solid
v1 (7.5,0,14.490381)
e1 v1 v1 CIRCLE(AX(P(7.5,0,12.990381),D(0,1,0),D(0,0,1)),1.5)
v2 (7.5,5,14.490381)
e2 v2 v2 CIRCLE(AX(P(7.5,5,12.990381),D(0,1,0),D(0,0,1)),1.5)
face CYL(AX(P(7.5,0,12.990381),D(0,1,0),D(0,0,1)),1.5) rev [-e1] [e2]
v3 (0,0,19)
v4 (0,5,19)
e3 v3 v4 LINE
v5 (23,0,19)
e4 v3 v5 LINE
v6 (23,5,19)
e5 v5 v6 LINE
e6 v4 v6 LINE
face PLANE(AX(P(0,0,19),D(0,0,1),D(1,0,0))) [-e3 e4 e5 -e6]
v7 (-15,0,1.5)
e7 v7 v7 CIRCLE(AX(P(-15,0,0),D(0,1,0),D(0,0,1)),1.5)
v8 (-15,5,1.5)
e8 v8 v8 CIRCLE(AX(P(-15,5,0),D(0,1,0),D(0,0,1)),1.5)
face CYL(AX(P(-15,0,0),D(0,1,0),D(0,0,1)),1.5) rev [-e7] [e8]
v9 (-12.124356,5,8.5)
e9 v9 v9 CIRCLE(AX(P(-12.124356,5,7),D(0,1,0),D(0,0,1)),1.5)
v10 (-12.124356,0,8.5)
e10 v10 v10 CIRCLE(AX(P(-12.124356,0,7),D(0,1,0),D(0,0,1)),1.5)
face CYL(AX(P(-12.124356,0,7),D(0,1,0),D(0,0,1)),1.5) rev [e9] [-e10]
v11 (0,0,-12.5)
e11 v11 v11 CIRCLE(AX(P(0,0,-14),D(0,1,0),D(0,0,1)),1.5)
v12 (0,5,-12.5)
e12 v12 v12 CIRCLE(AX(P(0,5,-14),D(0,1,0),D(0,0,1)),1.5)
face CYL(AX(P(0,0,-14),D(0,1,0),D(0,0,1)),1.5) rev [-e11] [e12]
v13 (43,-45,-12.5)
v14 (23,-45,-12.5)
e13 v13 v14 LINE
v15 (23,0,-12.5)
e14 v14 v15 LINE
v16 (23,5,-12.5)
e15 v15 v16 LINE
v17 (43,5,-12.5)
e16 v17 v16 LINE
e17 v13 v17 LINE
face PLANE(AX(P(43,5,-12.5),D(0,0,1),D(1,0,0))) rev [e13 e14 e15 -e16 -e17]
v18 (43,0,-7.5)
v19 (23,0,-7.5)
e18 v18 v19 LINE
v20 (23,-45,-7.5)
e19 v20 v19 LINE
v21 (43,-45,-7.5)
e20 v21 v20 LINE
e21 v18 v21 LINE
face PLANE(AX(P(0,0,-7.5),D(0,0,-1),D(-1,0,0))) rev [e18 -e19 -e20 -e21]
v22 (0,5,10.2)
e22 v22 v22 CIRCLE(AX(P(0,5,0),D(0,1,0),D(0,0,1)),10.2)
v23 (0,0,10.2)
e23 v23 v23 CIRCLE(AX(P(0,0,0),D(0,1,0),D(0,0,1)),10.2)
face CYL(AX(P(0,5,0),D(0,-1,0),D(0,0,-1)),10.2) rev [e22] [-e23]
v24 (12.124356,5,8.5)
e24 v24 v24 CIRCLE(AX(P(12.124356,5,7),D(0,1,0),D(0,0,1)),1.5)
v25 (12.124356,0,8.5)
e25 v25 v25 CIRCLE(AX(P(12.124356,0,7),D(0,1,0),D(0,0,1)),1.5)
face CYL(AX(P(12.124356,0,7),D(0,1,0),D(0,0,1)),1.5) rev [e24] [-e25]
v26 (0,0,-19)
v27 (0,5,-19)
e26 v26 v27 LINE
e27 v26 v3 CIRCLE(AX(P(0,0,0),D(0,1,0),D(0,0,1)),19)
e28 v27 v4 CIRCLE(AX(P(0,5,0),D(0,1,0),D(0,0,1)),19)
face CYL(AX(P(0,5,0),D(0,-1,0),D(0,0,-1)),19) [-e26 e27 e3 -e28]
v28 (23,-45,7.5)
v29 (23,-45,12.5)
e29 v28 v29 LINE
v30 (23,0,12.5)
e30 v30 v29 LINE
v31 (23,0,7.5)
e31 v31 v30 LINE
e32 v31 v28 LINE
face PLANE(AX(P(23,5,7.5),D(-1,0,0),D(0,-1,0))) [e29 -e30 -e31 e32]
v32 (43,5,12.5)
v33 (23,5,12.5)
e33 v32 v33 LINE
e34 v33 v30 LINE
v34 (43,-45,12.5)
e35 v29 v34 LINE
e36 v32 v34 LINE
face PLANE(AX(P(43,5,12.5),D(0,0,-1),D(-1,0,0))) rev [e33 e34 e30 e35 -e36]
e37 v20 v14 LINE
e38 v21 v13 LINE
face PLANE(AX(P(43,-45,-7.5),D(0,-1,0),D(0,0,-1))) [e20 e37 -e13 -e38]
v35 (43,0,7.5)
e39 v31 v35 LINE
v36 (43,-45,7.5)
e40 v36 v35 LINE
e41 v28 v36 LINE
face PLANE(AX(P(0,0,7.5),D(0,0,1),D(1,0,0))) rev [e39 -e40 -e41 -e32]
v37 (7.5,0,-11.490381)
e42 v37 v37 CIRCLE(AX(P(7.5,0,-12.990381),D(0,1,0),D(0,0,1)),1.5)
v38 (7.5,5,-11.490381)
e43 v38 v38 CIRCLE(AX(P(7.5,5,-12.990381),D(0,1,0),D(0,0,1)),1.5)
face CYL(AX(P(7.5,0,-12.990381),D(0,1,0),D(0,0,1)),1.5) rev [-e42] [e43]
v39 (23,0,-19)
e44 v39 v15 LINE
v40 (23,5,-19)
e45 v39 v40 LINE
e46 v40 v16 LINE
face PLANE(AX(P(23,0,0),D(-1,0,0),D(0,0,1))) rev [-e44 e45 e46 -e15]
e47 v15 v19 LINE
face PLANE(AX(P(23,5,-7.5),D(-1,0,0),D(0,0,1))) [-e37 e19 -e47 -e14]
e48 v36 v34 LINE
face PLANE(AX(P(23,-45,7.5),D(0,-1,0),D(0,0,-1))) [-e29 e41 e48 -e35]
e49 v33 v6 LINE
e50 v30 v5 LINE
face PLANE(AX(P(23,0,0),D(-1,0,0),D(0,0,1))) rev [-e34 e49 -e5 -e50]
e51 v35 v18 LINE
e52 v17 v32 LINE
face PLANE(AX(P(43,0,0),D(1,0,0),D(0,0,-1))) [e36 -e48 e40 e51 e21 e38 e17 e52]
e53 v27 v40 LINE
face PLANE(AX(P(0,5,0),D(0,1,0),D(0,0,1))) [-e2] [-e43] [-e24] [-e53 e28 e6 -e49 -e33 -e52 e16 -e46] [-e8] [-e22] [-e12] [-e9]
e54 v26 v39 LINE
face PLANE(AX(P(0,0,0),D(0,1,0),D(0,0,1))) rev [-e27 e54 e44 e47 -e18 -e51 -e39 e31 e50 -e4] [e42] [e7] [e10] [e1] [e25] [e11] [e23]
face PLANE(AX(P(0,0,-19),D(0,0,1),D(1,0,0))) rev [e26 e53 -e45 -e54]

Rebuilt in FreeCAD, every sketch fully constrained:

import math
import FreeCAD as App
import Part
import Sketcher
from FreeCAD import Vector


def add_polygon(sketch, points):
    """Adds a closed chain of lines whose ends are joined by coincident constraints."""
    first, n = sketch.GeometryCount, len(points)
    for a, b in zip(points, points[1:] + points[:1]):
        sketch.addGeometry(Part.LineSegment(App.Vector(*a, 0), App.Vector(*b, 0)), False)
    for i in range(n):
        sketch.addConstraint(Sketcher.Constraint("Coincident", first + i, 2, first + (i + 1) % n, 1))

doc = App.newDocument("Part")
body = doc.addObject("PartDesign::Body", "Body")

# Sketch on XZ plane
sketch1 = body.newObject("Sketcher::SketchObject", "Sketch")
sketch1.AttachmentSupport = (doc.getObject("XZ_Plane"), [""])
sketch1.MapMode = "FlatFace"
sketch1.addGeometry([
    Part.Circle(Vector(0, 0, 0), Vector(0, 0, 1), 19),
    Part.Circle(Vector(0, 0, 0), Vector(0, 0, 1), 10.2),
], False)
sketch1.addConstraint([
    Sketcher.Constraint("Coincident", 0, 3, -1, 1),
    Sketcher.Constraint("Coincident", 1, 3, -1, 1),
    Sketcher.Constraint("Diameter", 0, 38.0),
    Sketcher.Constraint("Diameter", 1, 20.4),
])
pad1 = body.newObject("PartDesign::Pad", "Pad")
pad1.Profile = sketch1
pad1.Length = 5
pad1.Reversed = True

# Sketch on XZ plane
sketch2 = body.newObject("Sketcher::SketchObject", "Sketch001")
sketch2.AttachmentSupport = (doc.getObject("XZ_Plane"), [""])
sketch2.MapMode = "FlatFace"
sketch2.AttachmentOffset = App.Placement(Vector(0, 0, -5), App.Rotation())
sketch2.addGeometry([
    Part.Circle(Vector(0, -14, 0), Vector(0, 0, 1), 1.5),  # 0
    Part.Circle(Vector(7.5, -12.990381, 0), Vector(0, 0, 1), 1.5),  # 1
    Part.Circle(Vector(12.124356, 7, 0), Vector(0, 0, 1), 1.5),  # 2
    Part.Circle(Vector(7.5, 12.990381, 0), Vector(0, 0, 1), 1.5),  # 3
    Part.Circle(Vector(-12.124356, 7, 0), Vector(0, 0, 1), 1.5),  # 4
    Part.Circle(Vector(-15, 0, 0), Vector(0, 0, 1), 1.5),  # 5
], False)
sketch2.addConstraint([
    Sketcher.Constraint("Equal", 0, 1),
    Sketcher.Constraint("Equal", 1, 2),
    Sketcher.Constraint("Equal", 2, 3),
    Sketcher.Constraint("Equal", 3, 4),
    Sketcher.Constraint("Equal", 4, 5),
    Sketcher.Constraint("Symmetric", 2, 3, 4, 3, -2),
    Sketcher.Constraint("Symmetric", 1, 3, 3, 3, -1),
    Sketcher.Constraint("PointOnObject", 0, 3, -2),
    Sketcher.Constraint("PointOnObject", 5, 3, -1),
    Sketcher.Constraint("Diameter", 0, 3.0),
    Sketcher.Constraint("DistanceY", 0, 3, -1, 1, 14.0),
    Sketcher.Constraint("DistanceY", -1, 1, 2, 3, 7.0),
    Sketcher.Constraint("DistanceX", 5, 3, -1, 1, 15.0),
    Sketcher.Constraint("DistanceX", -1, 1, 1, 3, 7.5),
    Sketcher.Constraint("DistanceY", 1, 3, -1, 1, 12.990381),
    Sketcher.Constraint("DistanceX", 4, 3, 2, 3, 24.248711),
])
pocket1 = body.newObject("PartDesign::Pocket", "Pocket")
pocket1.Profile = sketch2
pocket1.Length = 5
pocket1.Reversed = True

# Sketch on XZ plane
sketch3 = body.newObject("Sketcher::SketchObject", "Sketch002")
sketch3.AttachmentSupport = (doc.getObject("XZ_Plane"), [""])
sketch3.MapMode = "FlatFace"
sketch3.addGeometry([
    Part.ArcOfCircle(Part.Circle(Vector(0, 0, 0), Vector(0, 0, 1), 19), math.radians(0), math.radians(90)),  # 0
    Part.LineSegment(Vector(0, 19, 0), Vector(23, 19, 0)),  # 1
    Part.LineSegment(Vector(23, 19, 0), Vector(23, -19, 0)),  # 2
    Part.LineSegment(Vector(23, -19, 0), Vector(0, -19, 0)),  # 3
    Part.ArcOfCircle(Part.Circle(Vector(0, 0, 0), Vector(0, 0, 1), 19), math.radians(-90), math.radians(0)),  # 4
], False)
sketch3.addConstraint([
    Sketcher.Constraint("Tangent", 0, 2, 1, 1),
    Sketcher.Constraint("Coincident", 1, 2, 2, 1),
    Sketcher.Constraint("Coincident", 2, 2, 3, 1),
    Sketcher.Constraint("Tangent", 3, 2, 4, 1),
    Sketcher.Constraint("Tangent", 4, 2, 0, 1),
    Sketcher.Constraint("Horizontal", 1),
    Sketcher.Constraint("Vertical", 2),
    Sketcher.Constraint("Horizontal", 3),
    Sketcher.Constraint("Coincident", 0, 3, -1, 1),
    Sketcher.Constraint("Equal", 0, 4),
    Sketcher.Constraint("PointOnObject", 4, 2, -1),
    Sketcher.Constraint("Radius", 0, 19.0),
    Sketcher.Constraint("DistanceX", 1, 1, 1, 2, 23.0),
])
pad2 = body.newObject("PartDesign::Pad", "Pad001")
pad2.Profile = sketch3
pad2.Length = 5
pad2.Reversed = True

# Sketch on YZ plane
sketch4 = body.newObject("Sketcher::SketchObject", "Sketch003")
sketch4.AttachmentSupport = (doc.getObject("YZ_Plane"), [""])
sketch4.MapMode = "FlatFace"
sketch4.AttachmentOffset = App.Placement(Vector(0, 0, 23), App.Rotation())
add_polygon(sketch4, [(5, 12.5), (0, 12.5), (0, -12.5), (5, -12.5)])  # lines 0-3
sketch4.addConstraint([
    Sketcher.Constraint("Horizontal", 0),
    Sketcher.Constraint("Vertical", 1),
    Sketcher.Constraint("Horizontal", 2),
    Sketcher.Constraint("Vertical", 3),
    Sketcher.Constraint("Symmetric", 0, 2, 1, 2, -1, 1),
    Sketcher.Constraint("DistanceX", 0, 2, 0, 1, 5.0),
    Sketcher.Constraint("DistanceY", 1, 2, 1, 1, 25.0),
])
pad3 = body.newObject("PartDesign::Pad", "Pad002")
pad3.Profile = sketch4
pad3.Length = 20

# Sketch on XY plane
sketch5 = body.newObject("Sketcher::SketchObject", "Sketch004")
sketch5.AttachmentSupport = (doc.getObject("XY_Plane"), [""])
sketch5.MapMode = "FlatFace"
sketch5.AttachmentOffset = App.Placement(Vector(0, 0, 12.5), App.Rotation())
add_polygon(sketch5, [(23, 5), (23, -45), (43, -45), (43, 5)])  # lines 0-3
sketch5.addConstraint([
    Sketcher.Constraint("Vertical", 0),
    Sketcher.Constraint("Horizontal", 1),
    Sketcher.Constraint("Vertical", 2),
    Sketcher.Constraint("Horizontal", 3),
    Sketcher.Constraint("DistanceX", 1, 1, 1, 2, 20.0),
    Sketcher.Constraint("DistanceY", 0, 2, 0, 1, 50.0),
    Sketcher.Constraint("DistanceX", -1, 1, 0, 2, 23.0),
    Sketcher.Constraint("DistanceY", 0, 2, -1, 1, 45.0),
])
pad4 = body.newObject("PartDesign::Pad", "Pad003")
pad4.Profile = sketch5
pad4.Length = 5
pad4.Reversed = True

# Sketch on XY plane
sketch6 = body.newObject("Sketcher::SketchObject", "Sketch005")
sketch6.AttachmentSupport = (doc.getObject("XY_Plane"), [""])
sketch6.MapMode = "FlatFace"
sketch6.AttachmentOffset = App.Placement(Vector(0, 0, -12.5), App.Rotation())
add_polygon(sketch6, [(43, 5), (43, -45), (23, -45), (23, 5)])  # lines 0-3
sketch6.addConstraint([
    Sketcher.Constraint("Vertical", 0),
    Sketcher.Constraint("Horizontal", 1),
    Sketcher.Constraint("Vertical", 2),
    Sketcher.Constraint("Horizontal", 3),
    Sketcher.Constraint("DistanceX", 1, 2, 1, 1, 20.0),
    Sketcher.Constraint("DistanceY", 0, 2, 0, 1, 50.0),
    Sketcher.Constraint("DistanceX", -1, 1, 0, 2, 43.0),
    Sketcher.Constraint("DistanceY", 0, 2, -1, 1, 45.0),
])
pad5 = body.newObject("PartDesign::Pad", "Pad004")
pad5.Profile = sketch6
pad5.Length = 5

doc.recompute()
